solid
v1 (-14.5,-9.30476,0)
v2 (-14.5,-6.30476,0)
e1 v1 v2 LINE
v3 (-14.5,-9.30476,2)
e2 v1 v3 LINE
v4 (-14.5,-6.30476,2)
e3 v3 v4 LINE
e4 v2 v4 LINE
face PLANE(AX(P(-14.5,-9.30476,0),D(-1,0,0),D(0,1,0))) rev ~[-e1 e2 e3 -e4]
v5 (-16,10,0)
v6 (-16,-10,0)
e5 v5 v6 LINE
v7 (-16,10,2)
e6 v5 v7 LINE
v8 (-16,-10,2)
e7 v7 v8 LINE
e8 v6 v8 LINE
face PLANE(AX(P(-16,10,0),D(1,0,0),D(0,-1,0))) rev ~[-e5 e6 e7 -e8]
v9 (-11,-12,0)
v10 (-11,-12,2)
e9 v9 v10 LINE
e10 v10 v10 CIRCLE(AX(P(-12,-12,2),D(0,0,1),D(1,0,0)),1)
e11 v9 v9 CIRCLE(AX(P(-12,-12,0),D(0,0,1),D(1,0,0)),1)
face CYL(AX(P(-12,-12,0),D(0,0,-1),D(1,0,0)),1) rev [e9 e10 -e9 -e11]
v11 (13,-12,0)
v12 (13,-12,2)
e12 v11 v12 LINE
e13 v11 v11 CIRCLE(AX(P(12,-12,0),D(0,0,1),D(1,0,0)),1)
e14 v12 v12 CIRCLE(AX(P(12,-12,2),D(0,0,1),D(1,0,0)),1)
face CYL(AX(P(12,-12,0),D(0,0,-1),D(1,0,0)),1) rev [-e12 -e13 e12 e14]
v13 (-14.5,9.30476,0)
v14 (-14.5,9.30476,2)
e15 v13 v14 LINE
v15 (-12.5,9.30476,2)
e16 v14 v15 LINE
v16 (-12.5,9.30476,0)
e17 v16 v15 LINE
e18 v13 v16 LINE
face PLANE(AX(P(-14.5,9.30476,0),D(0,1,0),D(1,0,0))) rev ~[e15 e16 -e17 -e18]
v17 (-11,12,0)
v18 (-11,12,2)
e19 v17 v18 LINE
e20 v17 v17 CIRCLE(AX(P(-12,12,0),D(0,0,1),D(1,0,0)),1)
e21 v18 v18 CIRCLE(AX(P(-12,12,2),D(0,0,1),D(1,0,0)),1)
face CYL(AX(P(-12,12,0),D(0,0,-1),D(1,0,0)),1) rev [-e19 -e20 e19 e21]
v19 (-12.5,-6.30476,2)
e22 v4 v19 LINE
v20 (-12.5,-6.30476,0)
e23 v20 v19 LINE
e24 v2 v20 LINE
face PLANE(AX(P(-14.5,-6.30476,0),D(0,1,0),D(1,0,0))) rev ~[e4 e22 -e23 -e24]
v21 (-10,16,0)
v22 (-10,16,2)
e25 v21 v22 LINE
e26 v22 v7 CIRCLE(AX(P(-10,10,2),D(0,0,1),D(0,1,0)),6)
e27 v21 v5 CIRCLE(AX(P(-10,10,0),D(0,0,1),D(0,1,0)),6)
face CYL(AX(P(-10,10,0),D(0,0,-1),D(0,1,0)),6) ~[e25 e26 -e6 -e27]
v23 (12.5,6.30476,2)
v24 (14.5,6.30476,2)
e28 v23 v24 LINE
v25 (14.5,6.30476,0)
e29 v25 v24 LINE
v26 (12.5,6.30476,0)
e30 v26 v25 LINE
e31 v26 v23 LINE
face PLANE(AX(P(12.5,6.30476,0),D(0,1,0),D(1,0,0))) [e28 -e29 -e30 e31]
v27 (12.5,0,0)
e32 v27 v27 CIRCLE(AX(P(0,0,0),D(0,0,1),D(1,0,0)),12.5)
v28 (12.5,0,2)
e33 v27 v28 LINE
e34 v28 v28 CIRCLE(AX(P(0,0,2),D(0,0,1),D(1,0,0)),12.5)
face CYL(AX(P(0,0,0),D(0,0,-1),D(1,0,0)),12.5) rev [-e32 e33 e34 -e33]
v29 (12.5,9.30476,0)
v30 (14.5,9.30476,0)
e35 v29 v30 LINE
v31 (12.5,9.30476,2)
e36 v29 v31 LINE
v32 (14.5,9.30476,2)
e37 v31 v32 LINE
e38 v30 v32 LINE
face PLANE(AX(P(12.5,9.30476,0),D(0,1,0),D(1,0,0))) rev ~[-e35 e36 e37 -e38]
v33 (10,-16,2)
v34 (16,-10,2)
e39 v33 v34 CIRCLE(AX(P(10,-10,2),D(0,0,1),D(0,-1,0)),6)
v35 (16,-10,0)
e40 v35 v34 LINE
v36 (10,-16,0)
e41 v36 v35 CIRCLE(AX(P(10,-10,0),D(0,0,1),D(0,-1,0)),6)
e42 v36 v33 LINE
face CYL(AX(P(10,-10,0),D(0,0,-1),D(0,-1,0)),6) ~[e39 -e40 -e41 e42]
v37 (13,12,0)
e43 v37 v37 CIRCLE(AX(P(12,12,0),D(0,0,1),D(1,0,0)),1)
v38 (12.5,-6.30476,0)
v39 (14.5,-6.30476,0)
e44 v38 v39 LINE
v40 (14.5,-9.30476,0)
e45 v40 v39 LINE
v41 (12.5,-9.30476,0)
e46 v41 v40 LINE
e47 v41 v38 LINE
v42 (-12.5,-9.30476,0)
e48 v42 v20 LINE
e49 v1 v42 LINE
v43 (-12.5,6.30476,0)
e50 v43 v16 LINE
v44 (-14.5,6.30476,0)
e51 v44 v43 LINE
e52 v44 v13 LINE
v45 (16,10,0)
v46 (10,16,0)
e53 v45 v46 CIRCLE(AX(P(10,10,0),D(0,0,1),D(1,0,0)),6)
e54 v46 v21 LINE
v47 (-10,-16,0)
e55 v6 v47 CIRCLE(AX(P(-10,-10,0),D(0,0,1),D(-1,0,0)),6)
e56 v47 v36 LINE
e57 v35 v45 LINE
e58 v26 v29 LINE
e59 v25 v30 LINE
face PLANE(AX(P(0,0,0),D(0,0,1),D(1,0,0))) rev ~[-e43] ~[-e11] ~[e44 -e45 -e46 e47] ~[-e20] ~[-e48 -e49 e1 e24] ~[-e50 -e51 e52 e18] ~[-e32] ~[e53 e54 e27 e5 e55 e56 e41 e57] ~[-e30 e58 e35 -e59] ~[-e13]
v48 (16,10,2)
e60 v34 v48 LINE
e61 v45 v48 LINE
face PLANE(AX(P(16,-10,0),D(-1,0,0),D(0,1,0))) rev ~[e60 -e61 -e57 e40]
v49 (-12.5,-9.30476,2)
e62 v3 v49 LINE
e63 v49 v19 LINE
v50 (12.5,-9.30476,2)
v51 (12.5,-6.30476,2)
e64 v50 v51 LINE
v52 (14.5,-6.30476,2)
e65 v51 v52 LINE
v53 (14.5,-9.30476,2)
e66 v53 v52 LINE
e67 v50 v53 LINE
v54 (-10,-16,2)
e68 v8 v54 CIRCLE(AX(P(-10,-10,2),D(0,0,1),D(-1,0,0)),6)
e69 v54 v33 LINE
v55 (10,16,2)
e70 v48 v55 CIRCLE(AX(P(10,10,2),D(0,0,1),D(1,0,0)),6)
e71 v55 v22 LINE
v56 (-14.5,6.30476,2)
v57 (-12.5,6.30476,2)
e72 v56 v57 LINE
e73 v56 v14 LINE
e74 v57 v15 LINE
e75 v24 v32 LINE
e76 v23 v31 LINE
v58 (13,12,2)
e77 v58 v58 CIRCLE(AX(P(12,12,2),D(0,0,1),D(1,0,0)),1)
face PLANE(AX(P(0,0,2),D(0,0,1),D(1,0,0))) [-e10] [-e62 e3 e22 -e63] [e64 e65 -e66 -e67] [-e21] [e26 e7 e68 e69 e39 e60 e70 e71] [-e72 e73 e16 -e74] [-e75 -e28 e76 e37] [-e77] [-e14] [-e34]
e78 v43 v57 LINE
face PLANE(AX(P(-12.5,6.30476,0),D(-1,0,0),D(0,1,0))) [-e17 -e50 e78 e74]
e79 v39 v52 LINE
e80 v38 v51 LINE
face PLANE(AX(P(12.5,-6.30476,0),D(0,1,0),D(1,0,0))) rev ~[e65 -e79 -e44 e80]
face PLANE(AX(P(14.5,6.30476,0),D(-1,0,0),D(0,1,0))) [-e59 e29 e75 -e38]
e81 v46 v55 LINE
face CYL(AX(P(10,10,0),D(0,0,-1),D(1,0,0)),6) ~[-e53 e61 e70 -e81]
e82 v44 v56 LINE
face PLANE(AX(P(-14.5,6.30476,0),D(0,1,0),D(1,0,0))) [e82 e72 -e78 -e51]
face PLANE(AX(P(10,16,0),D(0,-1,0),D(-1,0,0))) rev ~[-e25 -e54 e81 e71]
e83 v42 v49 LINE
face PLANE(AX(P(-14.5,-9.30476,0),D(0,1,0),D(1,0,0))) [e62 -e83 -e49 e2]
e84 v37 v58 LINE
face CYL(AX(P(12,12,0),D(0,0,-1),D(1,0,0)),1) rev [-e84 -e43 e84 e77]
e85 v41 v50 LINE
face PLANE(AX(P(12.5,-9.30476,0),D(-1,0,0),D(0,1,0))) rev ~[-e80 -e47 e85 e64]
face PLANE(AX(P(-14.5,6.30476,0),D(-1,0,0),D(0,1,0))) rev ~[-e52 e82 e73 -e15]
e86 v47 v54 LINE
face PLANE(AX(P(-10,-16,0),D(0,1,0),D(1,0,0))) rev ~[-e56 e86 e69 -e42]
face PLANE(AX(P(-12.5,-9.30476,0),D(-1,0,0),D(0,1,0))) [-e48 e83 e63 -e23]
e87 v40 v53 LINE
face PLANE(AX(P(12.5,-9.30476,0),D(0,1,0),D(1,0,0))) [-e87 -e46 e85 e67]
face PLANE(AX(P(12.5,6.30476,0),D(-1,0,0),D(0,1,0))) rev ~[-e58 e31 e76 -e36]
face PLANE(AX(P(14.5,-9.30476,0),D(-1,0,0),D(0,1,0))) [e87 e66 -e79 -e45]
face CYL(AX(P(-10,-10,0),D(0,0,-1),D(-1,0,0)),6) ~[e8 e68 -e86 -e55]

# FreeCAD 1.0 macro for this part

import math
import FreeCAD as App
import Part
import Sketcher
from FreeCAD import Vector

doc = App.newDocument("Part")
params = doc.addObject("Spreadsheet::Sheet", "Params")
for row, (alias, value) in enumerate([
    ("sketch1_diameter", "2 mm"),
    ("sketch1_diameter2", "25 mm"),
    ("sketch1_radius", "6 mm"),
    ("sketch1_width", "20 mm"),
    ("sketch1_width2", "2 mm"),
    ("pad1_length", "2 mm"),
    ("sketch2_diameter", "2 mm"),
    ("sketch2_diameter2", "25 mm"),
    ("sketch2_radius", "6 mm"),
    ("sketch2_width", "20 mm"),
    ("sketch2_width2", "2 mm"),
    ("pad2_length", "2 mm"),
], start=1):
    params.set(f"A{row}", alias)
    params.set(f"B{row}", "=" + value)
    params.setAlias(f"B{row}", alias)

body = doc.addObject("PartDesign::Body", "Body")

sketch1 = doc.addObject("Sketcher::SketchObject", "Sketch")
body.addObject(sketch1)
sketch1.AttachmentSupport = (doc.XY_Plane, [""])
sketch1.MapMode = "FlatFace"
sketch1.addGeometry([
    Part.LineSegment(Vector(10, 16, 0), Vector(-10, 16, 0)),
    Part.ArcOfCircle(Part.Circle(Vector(-10, 10, 0), Vector(0, 0, 1), 6), math.radians(90), math.radians(180)),
    Part.LineSegment(Vector(-16, 10, 0), Vector(-16, -10, 0)),
    Part.ArcOfCircle(Part.Circle(Vector(-10, -10, 0), Vector(0, 0, 1), 6), math.radians(180), math.radians(270)),
    Part.LineSegment(Vector(-10, -16, 0), Vector(10, -16, 0)),
    Part.ArcOfCircle(Part.Circle(Vector(10, -10, 0), Vector(0, 0, 1), 6), math.radians(-90), math.radians(0)),
    Part.LineSegment(Vector(16, -10, 0), Vector(16, 10, 0)),
    Part.ArcOfCircle(Part.Circle(Vector(10, 10, 0), Vector(0, 0, 1), 6), math.radians(0), math.radians(90)),
    Part.Circle(Vector(-12, -12, 0), Vector(0, 0, 1), 1),
    Part.LineSegment(Vector(-12.5, -9.3, 0), Vector(-14.5, -9.3, 0)),
    Part.LineSegment(Vector(-14.5, -9.3, 0), Vector(-14.5, -6.3, 0)),
    Part.LineSegment(Vector(-14.5, -6.3, 0), Vector(-12.5, -6.3, 0)),
    Part.LineSegment(Vector(-12.5, -6.3, 0), Vector(-12.5, -9.3, 0)),
    Part.Circle(Vector(12, -12, 0), Vector(0, 0, 1), 1),
    Part.LineSegment(Vector(14.5, -9.3, 0), Vector(12.5, -9.3, 0)),
    Part.LineSegment(Vector(12.5, -9.3, 0), Vector(12.5, -6.3, 0)),
    Part.LineSegment(Vector(12.5, -6.3, 0), Vector(14.5, -6.3, 0)),
    Part.LineSegment(Vector(14.5, -6.3, 0), Vector(14.5, -9.3, 0)),
    Part.LineSegment(Vector(-12.5, 6.3, 0), Vector(-14.5, 6.3, 0)),
    Part.LineSegment(Vector(-14.5, 6.3, 0), Vector(-14.5, 9.3, 0)),
    Part.LineSegment(Vector(-14.5, 9.3, 0), Vector(-12.5, 9.3, 0)),
    Part.LineSegment(Vector(-12.5, 9.3, 0), Vector(-12.5, 6.3, 0)),
    Part.Circle(Vector(-12, 12, 0), Vector(0, 0, 1), 1),
    Part.Circle(Vector(0, 0, 0), Vector(0, 0, 1), 12.5),
    Part.LineSegment(Vector(14.5, 6.3, 0), Vector(12.5, 6.3, 0)),
    Part.LineSegment(Vector(12.5, 6.3, 0), Vector(12.5, 9.3, 0)),
    Part.LineSegment(Vector(12.5, 9.3, 0), Vector(14.5, 9.3, 0)),
    Part.LineSegment(Vector(14.5, 9.3, 0), Vector(14.5, 6.3, 0)),
    Part.Circle(Vector(12, 12, 0), Vector(0, 0, 1), 1),
], False)
sketch1.addConstraint([
    Sketcher.Constraint("Tangent", 0, 2, 1, 1),
    Sketcher.Constraint("Tangent", 1, 2, 2, 1),
    Sketcher.Constraint("Tangent", 2, 2, 3, 1),
    Sketcher.Constraint("Tangent", 3, 2, 4, 1),
    Sketcher.Constraint("Tangent", 4, 2, 5, 1),
    Sketcher.Constraint("Tangent", 5, 2, 6, 1),
    Sketcher.Constraint("Tangent", 6, 2, 7, 1),
    Sketcher.Constraint("Tangent", 7, 2, 0, 1),
    Sketcher.Constraint("Coincident", 9, 2, 10, 1),
    Sketcher.Constraint("Coincident", 10, 2, 11, 1),
    Sketcher.Constraint("Coincident", 11, 2, 12, 1),
    Sketcher.Constraint("Coincident", 12, 2, 9, 1),
    Sketcher.Constraint("Coincident", 14, 2, 15, 1),
    Sketcher.Constraint("Coincident", 15, 2, 16, 1),
    Sketcher.Constraint("Coincident", 16, 2, 17, 1),
    Sketcher.Constraint("Coincident", 17, 2, 14, 1),
    Sketcher.Constraint("Coincident", 18, 2, 19, 1),
    Sketcher.Constraint("Coincident", 19, 2, 20, 1),
    Sketcher.Constraint("Coincident", 20, 2, 21, 1),
    Sketcher.Constraint("Coincident", 21, 2, 18, 1),
    Sketcher.Constraint("Coincident", 24, 2, 25, 1),
    Sketcher.Constraint("Coincident", 25, 2, 26, 1),
    Sketcher.Constraint("Coincident", 26, 2, 27, 1),
    Sketcher.Constraint("Coincident", 27, 2, 24, 1),
    Sketcher.Constraint("Horizontal", 0),
    Sketcher.Constraint("Vertical", 2),
    Sketcher.Constraint("Horizontal", 4),
    Sketcher.Constraint("Vertical", 6),
    Sketcher.Constraint("Horizontal", 9),
    Sketcher.Constraint("Vertical", 10),
    Sketcher.Constraint("Horizontal", 11),
    Sketcher.Constraint("Vertical", 12),
    Sketcher.Constraint("Horizontal", 14),
    Sketcher.Constraint("Vertical", 15),
    Sketcher.Constraint("Horizontal", 16),
    Sketcher.Constraint("Vertical", 17),
    Sketcher.Constraint("Horizontal", 18),
    Sketcher.Constraint("Vertical", 19),
    Sketcher.Constraint("Horizontal", 20),
    Sketcher.Constraint("Vertical", 21),
    Sketcher.Constraint("Horizontal", 24),
    Sketcher.Constraint("Vertical", 25),
    Sketcher.Constraint("Horizontal", 26),
    Sketcher.Constraint("Vertical", 27),
    Sketcher.Constraint("Coincident", 23, 3, -1, 1),
    Sketcher.Constraint("Equal", 1, 3),
    Sketcher.Constraint("Equal", 3, 5),
    Sketcher.Constraint("Equal", 5, 7),
    Sketcher.Constraint("Equal", 8, 13),
    Sketcher.Constraint("Equal", 13, 22),
    Sketcher.Constraint("Equal", 22, 28),
    Sketcher.Constraint("Symmetric", 1, 3, 5, 3, -1, 1),
    Sketcher.Constraint("Symmetric", 13, 3, 22, 3, -1, 1),
    Sketcher.Constraint("Symmetric", 8, 3, 28, 3, -1, 1),
    Sketcher.Constraint("Symmetric", 16, 2, 18, 2, -1, 1),
    Sketcher.Constraint("Symmetric", 14, 2, 20, 2, -1, 1),
    Sketcher.Constraint("Symmetric", 11, 2, 24, 2, -1, 1),
    Sketcher.Constraint("Symmetric", 9, 2, 26, 2, -1, 1),
    Sketcher.Constraint("Symmetric", 8, 3, 13, 3, -2),
    Sketcher.Constraint("Symmetric", 12, 2, 14, 2, -2),
    Sketcher.Constraint("Symmetric", 10, 2, 16, 2, -2),
    Sketcher.Constraint("Equal", 4, 2),
    Sketcher.Constraint("Diameter", 8, 2.0),
    Sketcher.Constraint("Diameter", 23, 25.0),
    Sketcher.Constraint("Radius", 1, 6.0),
    Sketcher.Constraint("DistanceX", 0, 2, 0, 1, 20.0),
    Sketcher.Constraint("DistanceX", 9, 2, 9, 1, 2.0),
    Sketcher.Constraint("DistanceY", 10, 1, 10, 2, 3.0),
    Sketcher.Constraint("DistanceX", 8, 3, -1, 1, 12.0),
    Sketcher.Constraint("DistanceY", 8, 3, -1, 1, 12.0),
    Sketcher.Constraint("DistanceX", 9, 2, -1, 1, 14.5),
    Sketcher.Constraint("DistanceY", 9, 2, -1, 1, 9.30476),
])
sketch1.setExpression("Constraints[62]", "Params.sketch1_diameter")
sketch1.setExpression("Constraints[63]", "Params.sketch1_diameter2")
sketch1.setExpression("Constraints[64]", "Params.sketch1_radius")
sketch1.setExpression("Constraints[65]", "Params.sketch1_width")
sketch1.setExpression("Constraints[66]", "Params.sketch1_width2")
pad1 = doc.addObject("PartDesign::Pad", "Pad")
body.addObject(pad1)
pad1.Profile = sketch1
pad1.setExpression("Length", "Params.pad1_length")

sketch2 = doc.addObject("Sketcher::SketchObject", "Sketch001")
body.addObject(sketch2)
sketch2.AttachmentSupport = (doc.XY_Plane, [""])
sketch2.MapMode = "FlatFace"
sketch2.addGeometry([
    Part.LineSegment(Vector(10, 16, 0), Vector(-10, 16, 0)),
    Part.ArcOfCircle(Part.Circle(Vector(-10, 10, 0), Vector(0, 0, 1), 6), math.radians(90), math.radians(180)),
    Part.LineSegment(Vector(-16, 10, 0), Vector(-16, -10, 0)),
    Part.ArcOfCircle(Part.Circle(Vector(-10, -10, 0), Vector(0, 0, 1), 6), math.radians(180), math.radians(270)),
    Part.LineSegment(Vector(-10, -16, 0), Vector(10, -16, 0)),
    Part.ArcOfCircle(Part.Circle(Vector(10, -10, 0), Vector(0, 0, 1), 6), math.radians(-90), math.radians(0)),
    Part.LineSegment(Vector(16, -10, 0), Vector(16, 10, 0)),
    Part.ArcOfCircle(Part.Circle(Vector(10, 10, 0), Vector(0, 0, 1), 6), math.radians(0), math.radians(90)),
    Part.Circle(Vector(-12, -12, 0), Vector(0, 0, 1), 1),
    Part.LineSegment(Vector(-12.5, -9.3, 0), Vector(-14.5, -9.3, 0)),
    Part.LineSegment(Vector(-14.5, -9.3, 0), Vector(-14.5, -6.3, 0)),
    Part.LineSegment(Vector(-14.5, -6.3, 0), Vector(-12.5, -6.3, 0)),
    Part.LineSegment(Vector(-12.5, -6.3, 0), Vector(-12.5, -9.3, 0)),
    Part.Circle(Vector(12, -12, 0), Vector(0, 0, 1), 1),
    Part.LineSegment(Vector(14.5, -9.3, 0), Vector(12.5, -9.3, 0)),
    Part.LineSegment(Vector(12.5, -9.3, 0), Vector(12.5, -6.3, 0)),
    Part.LineSegment(Vector(12.5, -6.3, 0), Vector(14.5, -6.3, 0)),
    Part.LineSegment(Vector(14.5, -6.3, 0), Vector(14.5, -9.3, 0)),
    Part.LineSegment(Vector(-12.5, 6.3, 0), Vector(-14.5, 6.3, 0)),
    Part.LineSegment(Vector(-14.5, 6.3, 0), Vector(-14.5, 9.3, 0)),
    Part.LineSegment(Vector(-14.5, 9.3, 0), Vector(-12.5, 9.3, 0)),
    Part.LineSegment(Vector(-12.5, 9.3, 0), Vector(-12.5, 6.3, 0)),
    Part.Circle(Vector(-12, 12, 0), Vector(0, 0, 1), 1),
    Part.Circle(Vector(0, 0, 0), Vector(0, 0, 1), 12.5),
    Part.LineSegment(Vector(14.5, 6.3, 0), Vector(12.5, 6.3, 0)),
    Part.LineSegment(Vector(12.5, 6.3, 0), Vector(12.5, 9.3, 0)),
    Part.LineSegment(Vector(12.5, 9.3, 0), Vector(14.5, 9.3, 0)),
    Part.LineSegment(Vector(14.5, 9.3, 0), Vector(14.5, 6.3, 0)),
    Part.Circle(Vector(12, 12, 0), Vector(0, 0, 1), 1),
], False)
sketch2.addConstraint([
    Sketcher.Constraint("Tangent", 0, 2, 1, 1),
    Sketcher.Constraint("Tangent", 1, 2, 2, 1),
    Sketcher.Constraint("Tangent", 2, 2, 3, 1),
    Sketcher.Constraint("Tangent", 3, 2, 4, 1),
    Sketcher.Constraint("Tangent", 4, 2, 5, 1),
    Sketcher.Constraint("Tangent", 5, 2, 6, 1),
    Sketcher.Constraint("Tangent", 6, 2, 7, 1),
    Sketcher.Constraint("Tangent", 7, 2, 0, 1),
    Sketcher.Constraint("Coincident", 9, 2, 10, 1),
    Sketcher.Constraint("Coincident", 10, 2, 11, 1),
    Sketcher.Constraint("Coincident", 11, 2, 12, 1),
    Sketcher.Constraint("Coincident", 12, 2, 9, 1),
    Sketcher.Constraint("Coincident", 14, 2, 15, 1),
    Sketcher.Constraint("Coincident", 15, 2, 16, 1),
    Sketcher.Constraint("Coincident", 16, 2, 17, 1),
    Sketcher.Constraint("Coincident", 17, 2, 14, 1),
    Sketcher.Constraint("Coincident", 18, 2, 19, 1),
    Sketcher.Constraint("Coincident", 19, 2, 20, 1),
    Sketcher.Constraint("Coincident", 20, 2, 21, 1),
    Sketcher.Constraint("Coincident", 21, 2, 18, 1),
    Sketcher.Constraint("Coincident", 24, 2, 25, 1),
    Sketcher.Constraint("Coincident", 25, 2, 26, 1),
    Sketcher.Constraint("Coincident", 26, 2, 27, 1),
    Sketcher.Constraint("Coincident", 27, 2, 24, 1),
    Sketcher.Constraint("Horizontal", 0),
    Sketcher.Constraint("Vertical", 2),
    Sketcher.Constraint("Horizontal", 4),
    Sketcher.Constraint("Vertical", 6),
    Sketcher.Constraint("Horizontal", 9),
    Sketcher.Constraint("Vertical", 10),
    Sketcher.Constraint("Horizontal", 11),
    Sketcher.Constraint("Vertical", 12),
    Sketcher.Constraint("Horizontal", 14),
    Sketcher.Constraint("Vertical", 15),
    Sketcher.Constraint("Horizontal", 16),
    Sketcher.Constraint("Vertical", 17),
    Sketcher.Constraint("Horizontal", 18),
    Sketcher.Constraint("Vertical", 19),
    Sketcher.Constraint("Horizontal", 20),
    Sketcher.Constraint("Vertical", 21),
    Sketcher.Constraint("Horizontal", 24),
    Sketcher.Constraint("Vertical", 25),
    Sketcher.Constraint("Horizontal", 26),
    Sketcher.Constraint("Vertical", 27),
    Sketcher.Constraint("Coincident", 23, 3, -1, 1),
    Sketcher.Constraint("Equal", 1, 3),
    Sketcher.Constraint("Equal", 3, 5),
    Sketcher.Constraint("Equal", 5, 7),
    Sketcher.Constraint("Equal", 8, 13),
    Sketcher.Constraint("Equal", 13, 22),
    Sketcher.Constraint("Equal", 22, 28),
    Sketcher.Constraint("Symmetric", 1, 3, 5, 3, -1, 1),
    Sketcher.Constraint("Symmetric", 13, 3, 22, 3, -1, 1),
    Sketcher.Constraint("Symmetric", 8, 3, 28, 3, -1, 1),
    Sketcher.Constraint("Symmetric", 16, 2, 18, 2, -1, 1),
    Sketcher.Constraint("Symmetric", 14, 2, 20, 2, -1, 1),
    Sketcher.Constraint("Symmetric", 11, 2, 24, 2, -1, 1),
    Sketcher.Constraint("Symmetric", 9, 2, 26, 2, -1, 1),
    Sketcher.Constraint("Symmetric", 8, 3, 13, 3, -2),
    Sketcher.Constraint("Symmetric", 12, 2, 14, 2, -2),
    Sketcher.Constraint("Symmetric", 10, 2, 16, 2, -2),
    Sketcher.Constraint("Equal", 4, 2),
    Sketcher.Constraint("Diameter", 8, 2.0),
    Sketcher.Constraint("Diameter", 23, 25.0),
    Sketcher.Constraint("Radius", 1, 6.0),
    Sketcher.Constraint("DistanceX", 0, 2, 0, 1, 20.0),
    Sketcher.Constraint("DistanceX", 9, 2, 9, 1, 2.0),
    Sketcher.Constraint("DistanceY", 10, 1, 10, 2, 3.0),
    Sketcher.Constraint("DistanceX", 8, 3, -1, 1, 12.0),
    Sketcher.Constraint("DistanceY", 8, 3, -1, 1, 12.0),
    Sketcher.Constraint("DistanceX", 9, 2, -1, 1, 14.5),
    Sketcher.Constraint("DistanceY", 9, 2, -1, 1, 9.30476),
])
sketch2.setExpression("Constraints[62]", "Params.sketch2_diameter")
sketch2.setExpression("Constraints[63]", "Params.sketch2_diameter2")
sketch2.setExpression("Constraints[64]", "Params.sketch2_radius")
sketch2.setExpression("Constraints[65]", "Params.sketch2_width")
sketch2.setExpression("Constraints[66]", "Params.sketch2_width2")
pad2 = doc.addObject("PartDesign::Pad", "Pad001")
body.addObject(pad2)
pad2.Profile = sketch2
pad2.setExpression("Length", "Params.pad2_length")

doc.recompute()
